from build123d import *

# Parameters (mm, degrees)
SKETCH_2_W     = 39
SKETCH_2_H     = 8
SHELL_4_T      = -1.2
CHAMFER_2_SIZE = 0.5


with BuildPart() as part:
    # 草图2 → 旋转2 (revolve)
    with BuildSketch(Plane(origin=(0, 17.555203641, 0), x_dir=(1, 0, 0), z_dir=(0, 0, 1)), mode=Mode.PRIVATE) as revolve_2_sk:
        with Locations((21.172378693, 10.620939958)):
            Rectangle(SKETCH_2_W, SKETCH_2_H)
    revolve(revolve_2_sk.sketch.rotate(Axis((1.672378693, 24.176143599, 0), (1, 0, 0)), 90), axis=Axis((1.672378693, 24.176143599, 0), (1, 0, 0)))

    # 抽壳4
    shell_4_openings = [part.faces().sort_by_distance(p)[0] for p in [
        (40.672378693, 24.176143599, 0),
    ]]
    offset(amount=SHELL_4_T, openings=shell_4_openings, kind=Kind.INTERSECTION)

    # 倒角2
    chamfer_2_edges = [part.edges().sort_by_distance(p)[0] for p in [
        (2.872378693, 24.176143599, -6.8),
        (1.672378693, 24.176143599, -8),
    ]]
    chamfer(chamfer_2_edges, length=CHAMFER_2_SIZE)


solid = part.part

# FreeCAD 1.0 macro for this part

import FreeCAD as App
import Part
import Sketcher
from FreeCAD import Vector


def edges_at(feature, points):
    """Names of the edges that pass closest to the given points."""
    edges = feature.Shape.Edges
    near = lambda p: min(range(len(edges)), key=lambda i: edges[i].distToShape(Part.Vertex(*p))[0])
    return sorted({f"Edge{near(p) + 1}" for p in points})


def faces_at(feature, points):
    """Names of the faces that lie closest to the given points."""
    faces = feature.Shape.Faces
    near = lambda p: min(range(len(faces)), key=lambda i: faces[i].distToShape(Part.Vertex(*p))[0])
    return sorted({f"Face{near(p) + 1}" for p in points})

doc = App.newDocument("Part")
body = doc.addObject("PartDesign::Body", "Body")

sketch1 = body.newObject("Sketcher::SketchObject", "Sketch")
sketch1.AttachmentSupport = (doc.getObject("XY_Plane"), [""])
sketch1.MapMode = "FlatFace"
sketch1.addGeometry(Part.LineSegment(Vector(2, 32, 0), Vector(2, 24, 0)), False)
sketch1.addGeometry(Part.LineSegment(Vector(2, 24, 0), Vector(41, 24, 0)), False)
sketch1.addGeometry(Part.LineSegment(Vector(41, 24, 0), Vector(41, 32, 0)), False)
sketch1.addGeometry(Part.LineSegment(Vector(41, 32, 0), Vector(2, 32, 0)), False)
sketch1.addGeometry(Part.LineSegment(Vector(2, 24, 0), Vector(41, 24, 0)), True)
sketch1.addConstraint(Sketcher.Constraint("Coincident", 0, 2, 1, 1))
sketch1.addConstraint(Sketcher.Constraint("Coincident", 1, 2, 2, 1))
sketch1.addConstraint(Sketcher.Constraint("Coincident", 2, 2, 3, 1))
sketch1.addConstraint(Sketcher.Constraint("Coincident", 3, 2, 0, 1))
sketch1.addConstraint(Sketcher.Constraint("Vertical", 0))
sketch1.addConstraint(Sketcher.Constraint("Horizontal", 1))
sketch1.addConstraint(Sketcher.Constraint("Vertical", 2))
sketch1.addConstraint(Sketcher.Constraint("Horizontal", 3))
sketch1.addConstraint(Sketcher.Constraint("Horizontal", 4))
sketch1.addConstraint(Sketcher.Constraint("Coincident", 4, 1, 0, 2))
sketch1.addConstraint(Sketcher.Constraint("Vertical", 2, 2, 4, 2))
sketch1.addConstraint(Sketcher.Constraint("DistanceX", 1, 1, 1, 2, 39.0))
sketch1.addConstraint(Sketcher.Constraint("DistanceY", 0, 2, 0, 1, 8.0))
sketch1.addConstraint(Sketcher.Constraint("DistanceX", -1, 1, 0, 2, 1.672379))
sketch1.addConstraint(Sketcher.Constraint("DistanceY", -1, 1, 0, 2, 24.176144))
revolution = body.newObject("PartDesign::Revolution", "Revolution")
revolution.Profile = sketch1
revolution.ReferenceAxis = (sketch1, ["Axis0"])
revolution.Angle = 360
doc.recompute()

thickness = body.newObject("PartDesign::Thickness", "Thickness")
thickness.Base = (revolution, faces_at(revolution, [(40.672, 24.176, 0)]))
thickness.Value = 1.2
thickness.Reversed = True
thickness.Join = "Intersection"
doc.recompute()

chamfer = body.newObject("PartDesign::Chamfer", "Chamfer")
chamfer.Base = (thickness, edges_at(thickness, [(2.872, 24.176, -6.8), (1.672, 24.176, -8)]))
chamfer.Size = 0.5

doc.recompute()
